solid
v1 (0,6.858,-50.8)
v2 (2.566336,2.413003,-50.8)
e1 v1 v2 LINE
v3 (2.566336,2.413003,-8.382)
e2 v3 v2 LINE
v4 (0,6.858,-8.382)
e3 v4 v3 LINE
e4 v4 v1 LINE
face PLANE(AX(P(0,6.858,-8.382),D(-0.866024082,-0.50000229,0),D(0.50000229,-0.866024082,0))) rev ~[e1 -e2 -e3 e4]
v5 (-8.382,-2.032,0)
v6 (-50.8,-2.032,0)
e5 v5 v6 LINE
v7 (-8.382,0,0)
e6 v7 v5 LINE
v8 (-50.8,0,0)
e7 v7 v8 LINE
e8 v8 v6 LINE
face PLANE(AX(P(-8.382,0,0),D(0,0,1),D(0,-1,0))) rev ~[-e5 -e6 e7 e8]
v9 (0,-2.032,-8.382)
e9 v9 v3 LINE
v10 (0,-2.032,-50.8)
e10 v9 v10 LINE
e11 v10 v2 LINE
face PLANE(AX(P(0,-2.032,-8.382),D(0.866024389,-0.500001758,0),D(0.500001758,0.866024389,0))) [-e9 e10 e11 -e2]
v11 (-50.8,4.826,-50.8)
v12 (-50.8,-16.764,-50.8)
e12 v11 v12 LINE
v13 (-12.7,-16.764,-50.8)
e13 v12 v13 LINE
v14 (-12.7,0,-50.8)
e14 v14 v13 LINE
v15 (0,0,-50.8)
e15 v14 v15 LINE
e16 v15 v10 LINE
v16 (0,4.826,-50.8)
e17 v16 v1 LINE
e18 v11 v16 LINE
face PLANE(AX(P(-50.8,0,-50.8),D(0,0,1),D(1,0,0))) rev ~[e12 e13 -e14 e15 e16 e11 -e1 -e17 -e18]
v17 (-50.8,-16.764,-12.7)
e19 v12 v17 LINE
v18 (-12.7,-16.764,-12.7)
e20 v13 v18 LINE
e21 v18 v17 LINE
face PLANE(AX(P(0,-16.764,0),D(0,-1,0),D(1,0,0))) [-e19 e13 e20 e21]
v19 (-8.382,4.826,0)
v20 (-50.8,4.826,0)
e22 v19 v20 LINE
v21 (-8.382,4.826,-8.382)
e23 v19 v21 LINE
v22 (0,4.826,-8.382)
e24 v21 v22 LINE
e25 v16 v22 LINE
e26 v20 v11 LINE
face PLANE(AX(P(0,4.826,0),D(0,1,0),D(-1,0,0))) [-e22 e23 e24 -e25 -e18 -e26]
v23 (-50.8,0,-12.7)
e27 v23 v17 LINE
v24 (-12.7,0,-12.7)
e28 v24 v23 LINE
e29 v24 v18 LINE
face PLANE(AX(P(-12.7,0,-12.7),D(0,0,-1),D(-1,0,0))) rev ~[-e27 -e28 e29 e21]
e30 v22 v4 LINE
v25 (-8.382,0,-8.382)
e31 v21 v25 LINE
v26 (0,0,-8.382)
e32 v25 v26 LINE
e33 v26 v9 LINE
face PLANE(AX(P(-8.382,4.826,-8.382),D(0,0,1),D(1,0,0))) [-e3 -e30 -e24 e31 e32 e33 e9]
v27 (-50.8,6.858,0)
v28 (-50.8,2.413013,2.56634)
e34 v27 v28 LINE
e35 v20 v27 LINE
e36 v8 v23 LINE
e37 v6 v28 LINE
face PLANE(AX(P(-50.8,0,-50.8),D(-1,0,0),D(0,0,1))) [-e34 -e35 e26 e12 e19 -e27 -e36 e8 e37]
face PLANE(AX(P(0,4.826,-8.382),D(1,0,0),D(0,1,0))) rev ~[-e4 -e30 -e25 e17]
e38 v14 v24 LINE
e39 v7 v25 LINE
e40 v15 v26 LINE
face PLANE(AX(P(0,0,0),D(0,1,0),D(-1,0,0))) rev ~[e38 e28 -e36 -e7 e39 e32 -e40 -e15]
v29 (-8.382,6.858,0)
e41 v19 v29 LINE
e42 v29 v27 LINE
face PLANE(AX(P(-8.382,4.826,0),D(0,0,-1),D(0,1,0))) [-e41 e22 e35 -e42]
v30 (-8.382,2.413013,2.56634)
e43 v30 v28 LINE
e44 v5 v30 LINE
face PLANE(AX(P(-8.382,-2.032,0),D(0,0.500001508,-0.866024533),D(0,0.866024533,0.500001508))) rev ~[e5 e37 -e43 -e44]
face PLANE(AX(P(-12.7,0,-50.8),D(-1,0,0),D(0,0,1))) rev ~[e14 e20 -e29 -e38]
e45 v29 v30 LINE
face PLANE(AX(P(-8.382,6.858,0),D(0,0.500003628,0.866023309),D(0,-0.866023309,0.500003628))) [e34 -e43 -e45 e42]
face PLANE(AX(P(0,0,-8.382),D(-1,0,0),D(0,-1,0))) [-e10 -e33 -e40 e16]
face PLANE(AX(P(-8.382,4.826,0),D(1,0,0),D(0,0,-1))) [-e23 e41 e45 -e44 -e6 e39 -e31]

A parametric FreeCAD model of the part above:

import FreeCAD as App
import Part
import Sketcher
Q = App.Units.Quantity


def add_polygon(sketch, points):
    """Adds a closed chain of lines whose ends are joined by coincident constraints."""
    first, n = sketch.GeometryCount, len(points)
    for a, b in zip(points, points[1:] + points[:1]):
        sketch.addGeometry(Part.LineSegment(App.Vector(*a, 0), App.Vector(*b, 0)), False)
    for i in range(n):
        sketch.addConstraint(Sketcher.Constraint("Coincident", first + i, 2, first + (i + 1) % n, 1))

doc = App.newDocument("Part")
body = doc.addObject("PartDesign::Body", "Body")

# Sketch on XZ plane
sketch1 = body.newObject("Sketcher::SketchObject", "Sketch")
sketch1.AttachmentSupport = (doc.getObject("XZ_Plane"), [""])
sketch1.MapMode = "FlatFace"
add_polygon(sketch1, [(-50.8, 0), (0, 0), (0, -50.8), (-50.8, -50.8)])  # lines 0-3
sketch1.addConstraint([
    Sketcher.Constraint("Horizontal", 0),
    Sketcher.Constraint("Vertical", 1),
    Sketcher.Constraint("Horizontal", 2),
    Sketcher.Constraint("Vertical", 3),
    Sketcher.Constraint("Coincident", 0, 2, -1, 1),
    Sketcher.Constraint("Equal", 2, 1),
    Sketcher.Constraint("DistanceX", 0, 1, 0, 2, Q("2 in")),
])
pad1 = body.newObject("PartDesign::Pad", "Pad")
pad1.Profile = sketch1
pad1.Length = Q("0.19 in")
pad1.Reversed = True

# Sketch on XZ plane
sketch2 = body.newObject("Sketcher::SketchObject", "Sketch001")
sketch2.AttachmentSupport = (doc.getObject("XZ_Plane"), [""])
sketch2.MapMode = "FlatFace"
sketch2.AttachmentOffset = App.Placement(App.Vector(0, 0, -0.19 * 25.4), App.Rotation())
add_polygon(sketch2, [(-8.382, 0), (0, 0), (0, -8.382), (-8.382, -8.382)])  # lines 0-3
sketch2.addConstraint([
    Sketcher.Constraint("Horizontal", 0),
    Sketcher.Constraint("Vertical", 1),
    Sketcher.Constraint("Horizontal", 2),
    Sketcher.Constraint("Vertical", 3),
    Sketcher.Constraint("Coincident", 0, 2, -1, 1),
    Sketcher.Constraint("Equal", 2, 1),
    Sketcher.Constraint("DistanceX", 0, 1, 0, 2, Q("0.33 in")),
])
pocket1 = body.newObject("PartDesign::Pocket", "Pocket")
pocket1.Profile = sketch2
pocket1.Length = Q("0.19 in")
pocket1.Reversed = True

# Sketch on YZ plane
sketch3 = body.newObject("Sketcher::SketchObject", "Sketch002")
sketch3.AttachmentSupport = (doc.getObject("YZ_Plane"), [""])
sketch3.MapMode = "FlatFace"
sketch3.AttachmentOffset = App.Placement(App.Vector(0, 0, -0.33 * 25.4), App.Rotation())
add_polygon(sketch3, [(-2.032, 0), (6.858, 0), (2.413013, 2.56634)])  # lines 0-2
sketch3.addConstraint([
    Sketcher.Constraint("Horizontal", 0),
    Sketcher.Constraint("PointOnObject", 0, 2, -1),
    Sketcher.Constraint("Equal", 1, 2),
    Sketcher.Constraint("DistanceX", 2, 2, -1, 1, Q("0.08 in")),
    Sketcher.Constraint("Angle", 1, Q("149.9998 deg")),
    Sketcher.Constraint("DistanceX", 0, 1, 0, 2, Q("0.35 in")),
])
pad2 = body.newObject("PartDesign::Pad", "Pad001")
pad2.Profile = sketch3
pad2.Length = Q("1.67 in")
pad2.Reversed = True

# Sketch on XY plane
sketch4 = body.newObject("Sketcher::SketchObject", "Sketch003")
sketch4.AttachmentSupport = (doc.getObject("XY_Plane"), [""])
sketch4.MapMode = "FlatFace"
sketch4.AttachmentOffset = App.Placement(App.Vector(0, 0, -0.33 * 25.4), App.Rotation())
add_polygon(sketch4, [(0, 6.858), (0, -2.032), (2.566336, 2.413003)])  # lines 0-2
sketch4.addConstraint([
    Sketcher.Constraint("Vertical", 0),
    Sketcher.Constraint("PointOnObject", 0, 2, -2),
    Sketcher.Constraint("Equal", 1, 2),
    Sketcher.Constraint("Angle", 1, Q("60 deg")),
    Sketcher.Constraint("DistanceY", 0, 2, -1, 1, Q("0.08 in")),
    Sketcher.Constraint("DistanceY", 0, 2, 0, 1, Q("0.35 in")),
])
pad3 = body.newObject("PartDesign::Pad", "Pad002")
pad3.Profile = sketch4
pad3.Length = Q("1.67 in")
pad3.Reversed = True

# Sketch on XZ plane
sketch5 = body.newObject("Sketcher::SketchObject", "Sketch004")
sketch5.AttachmentSupport = (doc.getObject("XZ_Plane"), [""])
sketch5.MapMode = "FlatFace"
add_polygon(sketch5, [(-50.8, -12.7), (-50.8, -50.8), (-12.7, -50.8), (-12.7, -12.7)])  # lines 0-3
sketch5.addConstraint([
    Sketcher.Constraint("Vertical", 0),
    Sketcher.Constraint("Horizontal", 1),
    Sketcher.Constraint("Vertical", 2),
    Sketcher.Constraint("Horizontal", 3),
    Sketcher.Constraint("Equal", 3, 0),
    Sketcher.Constraint("DistanceX", 1, 1, 1, 2, Q("1.5 in")),
    Sketcher.Constraint("DistanceX", 0, 2, -1, 1, Q("2 in")),
    Sketcher.Constraint("DistanceY", 0, 2, -1, 1, Q("2 in")),
])
pad4 = body.newObject("PartDesign::Pad", "Pad003")
pad4.Profile = sketch5
pad4.Length = Q("0.66 in")

doc.recompute()
